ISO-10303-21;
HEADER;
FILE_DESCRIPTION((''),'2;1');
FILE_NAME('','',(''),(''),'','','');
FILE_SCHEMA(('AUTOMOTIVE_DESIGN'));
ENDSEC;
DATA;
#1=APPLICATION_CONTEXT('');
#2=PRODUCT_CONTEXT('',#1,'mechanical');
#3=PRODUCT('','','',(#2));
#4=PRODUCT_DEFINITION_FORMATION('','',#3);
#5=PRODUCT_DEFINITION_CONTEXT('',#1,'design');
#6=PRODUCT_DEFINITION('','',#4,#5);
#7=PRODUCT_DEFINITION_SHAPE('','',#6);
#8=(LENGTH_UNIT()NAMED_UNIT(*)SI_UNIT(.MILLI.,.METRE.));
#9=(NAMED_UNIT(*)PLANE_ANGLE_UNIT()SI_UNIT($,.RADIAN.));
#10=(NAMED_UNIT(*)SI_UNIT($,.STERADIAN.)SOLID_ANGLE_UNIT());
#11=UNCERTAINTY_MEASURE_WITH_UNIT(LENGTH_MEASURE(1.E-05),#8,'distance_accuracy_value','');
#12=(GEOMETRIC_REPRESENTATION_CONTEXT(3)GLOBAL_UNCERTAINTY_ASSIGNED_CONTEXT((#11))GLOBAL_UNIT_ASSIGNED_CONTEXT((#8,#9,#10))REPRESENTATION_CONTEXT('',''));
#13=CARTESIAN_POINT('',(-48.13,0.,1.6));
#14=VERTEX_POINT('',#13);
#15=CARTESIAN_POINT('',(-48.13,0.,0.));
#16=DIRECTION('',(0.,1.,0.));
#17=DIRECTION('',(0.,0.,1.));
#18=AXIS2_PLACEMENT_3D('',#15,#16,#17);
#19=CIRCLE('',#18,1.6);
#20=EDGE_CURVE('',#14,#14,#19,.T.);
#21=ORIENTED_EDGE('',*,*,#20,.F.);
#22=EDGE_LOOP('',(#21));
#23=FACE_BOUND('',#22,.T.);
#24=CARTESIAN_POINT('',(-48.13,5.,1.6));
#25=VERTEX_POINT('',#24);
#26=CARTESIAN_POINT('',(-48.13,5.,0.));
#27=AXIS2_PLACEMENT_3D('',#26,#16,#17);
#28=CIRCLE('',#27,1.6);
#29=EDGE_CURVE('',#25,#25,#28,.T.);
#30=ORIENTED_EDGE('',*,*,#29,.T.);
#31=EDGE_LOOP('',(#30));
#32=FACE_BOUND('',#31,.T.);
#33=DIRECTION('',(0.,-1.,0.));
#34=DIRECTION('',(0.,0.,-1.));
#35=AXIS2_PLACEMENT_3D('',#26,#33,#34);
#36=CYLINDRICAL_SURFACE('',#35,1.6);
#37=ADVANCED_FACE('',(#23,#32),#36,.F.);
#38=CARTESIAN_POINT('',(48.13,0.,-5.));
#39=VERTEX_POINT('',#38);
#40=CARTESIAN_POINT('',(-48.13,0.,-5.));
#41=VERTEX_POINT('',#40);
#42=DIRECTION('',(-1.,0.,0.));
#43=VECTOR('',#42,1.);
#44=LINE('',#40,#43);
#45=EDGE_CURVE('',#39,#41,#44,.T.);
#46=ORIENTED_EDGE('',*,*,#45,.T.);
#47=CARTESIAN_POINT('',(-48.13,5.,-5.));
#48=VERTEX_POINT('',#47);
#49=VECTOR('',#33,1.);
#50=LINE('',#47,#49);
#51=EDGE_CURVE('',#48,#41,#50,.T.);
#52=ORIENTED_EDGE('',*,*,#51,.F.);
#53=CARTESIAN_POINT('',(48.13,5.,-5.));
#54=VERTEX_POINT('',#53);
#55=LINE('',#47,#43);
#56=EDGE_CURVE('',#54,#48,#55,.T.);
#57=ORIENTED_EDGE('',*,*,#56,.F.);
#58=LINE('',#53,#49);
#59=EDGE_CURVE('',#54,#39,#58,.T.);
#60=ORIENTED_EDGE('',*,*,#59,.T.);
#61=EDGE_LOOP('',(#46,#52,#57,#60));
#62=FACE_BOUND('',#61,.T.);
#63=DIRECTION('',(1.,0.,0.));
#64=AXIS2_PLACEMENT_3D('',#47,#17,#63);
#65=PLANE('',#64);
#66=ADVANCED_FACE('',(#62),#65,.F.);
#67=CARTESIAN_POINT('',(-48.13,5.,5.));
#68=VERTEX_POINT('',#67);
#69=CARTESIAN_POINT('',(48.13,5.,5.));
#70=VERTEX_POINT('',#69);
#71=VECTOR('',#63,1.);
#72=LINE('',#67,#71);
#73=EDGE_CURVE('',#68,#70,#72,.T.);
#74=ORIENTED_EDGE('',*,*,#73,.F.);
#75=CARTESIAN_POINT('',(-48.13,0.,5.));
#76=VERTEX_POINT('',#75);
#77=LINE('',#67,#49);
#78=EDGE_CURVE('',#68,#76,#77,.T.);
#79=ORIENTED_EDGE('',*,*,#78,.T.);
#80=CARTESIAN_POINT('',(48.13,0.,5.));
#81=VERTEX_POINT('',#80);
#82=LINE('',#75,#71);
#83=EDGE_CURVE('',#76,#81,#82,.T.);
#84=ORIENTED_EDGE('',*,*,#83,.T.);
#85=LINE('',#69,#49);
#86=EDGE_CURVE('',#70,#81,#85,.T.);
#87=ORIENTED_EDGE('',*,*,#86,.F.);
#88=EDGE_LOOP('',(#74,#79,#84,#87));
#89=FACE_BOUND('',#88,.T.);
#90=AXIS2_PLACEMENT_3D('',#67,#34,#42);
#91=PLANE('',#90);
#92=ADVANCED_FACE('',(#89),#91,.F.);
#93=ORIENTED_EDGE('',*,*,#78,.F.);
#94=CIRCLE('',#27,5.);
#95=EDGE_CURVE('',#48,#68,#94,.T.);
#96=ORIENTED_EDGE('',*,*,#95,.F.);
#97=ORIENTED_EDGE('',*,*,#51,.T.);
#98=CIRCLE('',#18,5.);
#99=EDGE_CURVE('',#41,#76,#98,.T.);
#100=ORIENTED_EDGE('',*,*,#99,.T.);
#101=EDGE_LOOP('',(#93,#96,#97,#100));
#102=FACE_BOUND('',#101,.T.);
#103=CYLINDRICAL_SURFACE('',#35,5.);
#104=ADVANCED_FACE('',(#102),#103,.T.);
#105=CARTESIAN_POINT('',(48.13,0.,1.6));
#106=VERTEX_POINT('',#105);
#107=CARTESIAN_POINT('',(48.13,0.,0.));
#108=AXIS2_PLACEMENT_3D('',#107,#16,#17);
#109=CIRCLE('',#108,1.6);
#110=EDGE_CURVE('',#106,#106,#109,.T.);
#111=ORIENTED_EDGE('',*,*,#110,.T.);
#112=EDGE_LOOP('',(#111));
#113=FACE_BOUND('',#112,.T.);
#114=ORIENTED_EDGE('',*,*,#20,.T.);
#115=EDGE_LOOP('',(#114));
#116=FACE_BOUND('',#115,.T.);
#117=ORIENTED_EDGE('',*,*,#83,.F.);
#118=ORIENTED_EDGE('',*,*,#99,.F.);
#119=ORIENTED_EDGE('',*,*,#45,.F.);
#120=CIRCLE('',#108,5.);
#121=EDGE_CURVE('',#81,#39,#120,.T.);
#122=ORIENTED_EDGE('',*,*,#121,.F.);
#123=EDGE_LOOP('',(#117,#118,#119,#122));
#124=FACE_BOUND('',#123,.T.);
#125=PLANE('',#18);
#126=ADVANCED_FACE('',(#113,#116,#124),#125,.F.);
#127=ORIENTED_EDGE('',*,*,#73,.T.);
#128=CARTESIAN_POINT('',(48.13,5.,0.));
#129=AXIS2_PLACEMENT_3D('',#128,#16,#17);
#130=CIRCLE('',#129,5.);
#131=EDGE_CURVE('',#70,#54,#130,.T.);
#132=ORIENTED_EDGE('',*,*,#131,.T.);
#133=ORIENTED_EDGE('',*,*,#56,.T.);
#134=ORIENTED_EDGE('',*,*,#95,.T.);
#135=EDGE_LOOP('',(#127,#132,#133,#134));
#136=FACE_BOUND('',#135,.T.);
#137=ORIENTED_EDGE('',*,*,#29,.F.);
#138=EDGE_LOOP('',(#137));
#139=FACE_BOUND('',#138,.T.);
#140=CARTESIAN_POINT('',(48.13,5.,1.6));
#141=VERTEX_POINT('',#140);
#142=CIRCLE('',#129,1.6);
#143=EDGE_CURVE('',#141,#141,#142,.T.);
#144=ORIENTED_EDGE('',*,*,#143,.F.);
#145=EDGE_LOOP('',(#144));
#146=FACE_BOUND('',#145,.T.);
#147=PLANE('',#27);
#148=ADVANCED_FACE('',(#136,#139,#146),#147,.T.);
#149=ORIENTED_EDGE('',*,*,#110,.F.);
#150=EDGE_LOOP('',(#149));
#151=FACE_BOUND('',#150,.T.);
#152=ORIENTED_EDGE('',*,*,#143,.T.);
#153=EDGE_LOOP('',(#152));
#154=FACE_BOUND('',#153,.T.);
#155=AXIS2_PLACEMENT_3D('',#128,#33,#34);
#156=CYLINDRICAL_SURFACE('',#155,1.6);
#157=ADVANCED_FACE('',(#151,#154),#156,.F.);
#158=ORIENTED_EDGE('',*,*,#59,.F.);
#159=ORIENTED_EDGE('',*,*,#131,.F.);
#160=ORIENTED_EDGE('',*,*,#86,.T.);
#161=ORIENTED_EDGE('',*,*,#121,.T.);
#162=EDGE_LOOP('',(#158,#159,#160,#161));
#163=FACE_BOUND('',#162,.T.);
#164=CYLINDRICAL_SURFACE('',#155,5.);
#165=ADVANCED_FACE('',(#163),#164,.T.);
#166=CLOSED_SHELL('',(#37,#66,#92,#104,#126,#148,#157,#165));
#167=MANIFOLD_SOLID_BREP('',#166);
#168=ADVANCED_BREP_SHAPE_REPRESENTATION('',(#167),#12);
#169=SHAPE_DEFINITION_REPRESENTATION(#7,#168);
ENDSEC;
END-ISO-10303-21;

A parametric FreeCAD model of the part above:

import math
import FreeCAD as App
import Part
import Sketcher
from FreeCAD import Vector

doc = App.newDocument("Part")
body = doc.addObject("PartDesign::Body", "Body")

# Sketch on XZ plane
sketch1 = body.newObject("Sketcher::SketchObject", "Sketch")
sketch1.AttachmentSupport = (doc.getObject("XZ_Plane"), [""])
sketch1.MapMode = "FlatFace"
sketch1.addGeometry(Part.LineSegment(Vector(48.1, -5, 0), Vector(-48.1, -5, 0)), False)
sketch1.addGeometry(Part.ArcOfCircle(Part.Circle(Vector(-48.1, 0, 0), Vector(0, 0, 1), 5), math.radians(90), math.radians(270)), False)
sketch1.addGeometry(Part.LineSegment(Vector(-48.1, 5, 0), Vector(48.1, 5, 0)), False)
sketch1.addGeometry(Part.ArcOfCircle(Part.Circle(Vector(48.1, 0, 0), Vector(0, 0, 1), 5), math.radians(-90), math.radians(90)), False)
sketch1.addGeometry(Part.Circle(Vector(48.1, 0, 0), Vector(0, 0, 1), 1.6), False)
sketch1.addGeometry(Part.Circle(Vector(-48.1, 0, 0), Vector(0, 0, 1), 1.6), False)
sketch1.addConstraint(Sketcher.Constraint("Tangent", 0, 2, 1, 2))
sketch1.addConstraint(Sketcher.Constraint("Tangent", 1, 1, 2, 1))
sketch1.addConstraint(Sketcher.Constraint("Tangent", 2, 2, 3, 2))
sketch1.addConstraint(Sketcher.Constraint("Tangent", 3, 1, 0, 1))
sketch1.addConstraint(Sketcher.Constraint("Horizontal", 0))
sketch1.addConstraint(Sketcher.Constraint("Horizontal", 2))
sketch1.addConstraint(Sketcher.Constraint("Coincident", 4, 3, 3, 3))
sketch1.addConstraint(Sketcher.Constraint("Coincident", 5, 3, 1, 3))
sketch1.addConstraint(Sketcher.Constraint("Equal", 4, 5))
sketch1.addConstraint(Sketcher.Constraint("Symmetric", 1, 3, 3, 3, -1, 1))
sketch1.addConstraint(Sketcher.Constraint("Radius", 1, 5.0))
sketch1.addConstraint(Sketcher.Constraint("Diameter", 4, 3.2))
sketch1.addConstraint(Sketcher.Constraint("DistanceX", 0, 2, 0, 1, 96.26))
pad1 = body.newObject("PartDesign::Pad", "Pad")
pad1.Profile = sketch1
pad1.Length = 5
pad1.Reversed = True

doc.recompute()
